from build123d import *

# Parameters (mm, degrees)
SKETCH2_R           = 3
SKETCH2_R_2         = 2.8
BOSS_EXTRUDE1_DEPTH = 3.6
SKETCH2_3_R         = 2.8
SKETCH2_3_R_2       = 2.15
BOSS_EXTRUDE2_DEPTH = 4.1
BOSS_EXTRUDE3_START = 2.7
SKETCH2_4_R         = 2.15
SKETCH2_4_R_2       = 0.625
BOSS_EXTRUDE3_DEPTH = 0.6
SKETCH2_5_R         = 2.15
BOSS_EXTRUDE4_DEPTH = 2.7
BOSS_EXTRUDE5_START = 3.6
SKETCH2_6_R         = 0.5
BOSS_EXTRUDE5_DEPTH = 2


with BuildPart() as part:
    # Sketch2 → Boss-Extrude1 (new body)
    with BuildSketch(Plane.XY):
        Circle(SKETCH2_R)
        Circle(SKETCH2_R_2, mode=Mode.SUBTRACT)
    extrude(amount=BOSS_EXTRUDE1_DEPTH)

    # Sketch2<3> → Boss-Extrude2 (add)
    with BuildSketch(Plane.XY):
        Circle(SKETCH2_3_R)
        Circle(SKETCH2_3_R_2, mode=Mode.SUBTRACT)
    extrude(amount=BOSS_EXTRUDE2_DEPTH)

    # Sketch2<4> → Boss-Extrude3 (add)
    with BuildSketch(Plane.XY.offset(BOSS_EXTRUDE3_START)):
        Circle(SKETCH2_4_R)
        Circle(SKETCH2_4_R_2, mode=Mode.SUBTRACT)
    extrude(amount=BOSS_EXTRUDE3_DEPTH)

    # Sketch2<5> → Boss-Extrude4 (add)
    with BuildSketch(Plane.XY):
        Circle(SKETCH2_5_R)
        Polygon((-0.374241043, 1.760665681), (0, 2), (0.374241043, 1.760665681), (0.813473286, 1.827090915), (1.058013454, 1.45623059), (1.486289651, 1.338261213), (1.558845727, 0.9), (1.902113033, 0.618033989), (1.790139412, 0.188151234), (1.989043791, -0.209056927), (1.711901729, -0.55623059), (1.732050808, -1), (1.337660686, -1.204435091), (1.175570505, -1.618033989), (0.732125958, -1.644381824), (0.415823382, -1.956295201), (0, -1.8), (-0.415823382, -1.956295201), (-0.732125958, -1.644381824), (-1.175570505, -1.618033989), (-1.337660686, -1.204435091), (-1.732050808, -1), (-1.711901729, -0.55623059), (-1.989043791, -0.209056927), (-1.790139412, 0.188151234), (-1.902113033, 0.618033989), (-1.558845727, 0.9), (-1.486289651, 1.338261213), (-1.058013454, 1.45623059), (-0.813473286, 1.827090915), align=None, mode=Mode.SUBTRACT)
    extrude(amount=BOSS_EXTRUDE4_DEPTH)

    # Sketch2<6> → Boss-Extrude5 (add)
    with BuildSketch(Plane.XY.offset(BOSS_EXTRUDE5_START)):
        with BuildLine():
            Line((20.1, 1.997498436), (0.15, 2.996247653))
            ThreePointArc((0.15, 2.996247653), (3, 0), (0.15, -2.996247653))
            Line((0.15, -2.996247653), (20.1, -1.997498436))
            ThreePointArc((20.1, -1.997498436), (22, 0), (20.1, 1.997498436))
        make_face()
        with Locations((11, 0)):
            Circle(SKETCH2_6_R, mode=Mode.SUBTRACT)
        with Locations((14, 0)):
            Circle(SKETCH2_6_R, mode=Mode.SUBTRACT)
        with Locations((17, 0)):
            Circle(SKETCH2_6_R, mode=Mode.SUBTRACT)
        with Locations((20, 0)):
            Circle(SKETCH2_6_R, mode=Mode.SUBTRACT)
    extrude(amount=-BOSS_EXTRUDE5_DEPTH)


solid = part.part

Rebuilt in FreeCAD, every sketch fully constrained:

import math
import FreeCAD as App
import Part
import Sketcher
Q = App.Units.Quantity

doc = App.newDocument("Part")
body = doc.addObject("PartDesign::Body", "Body")

sketch1 = body.newObject("Sketcher::SketchObject", "Sketch")
sketch1.AttachmentSupport = (doc.getObject("XY_Plane"), [""])
sketch1.MapMode = "FlatFace"
sketch1.addGeometry(Part.Circle(App.Vector(0, 0, 0), App.Vector(0, 0, 1), 3), False)
sketch1.addGeometry(Part.Circle(App.Vector(0, 0, 0), App.Vector(0, 0, 1), 2.8), False)
sketch1.addConstraint(Sketcher.Constraint("Coincident", 0, 3, -1, 1))
sketch1.addConstraint(Sketcher.Constraint("Coincident", 1, 3, -1, 1))
sketch1.addConstraint(Sketcher.Constraint("Diameter", 0, Q("6 mm")))
sketch1.addConstraint(Sketcher.Constraint("Diameter", 1, Q("5.6 mm")))
pad1 = body.newObject("PartDesign::Pad", "Pad")
pad1.Profile = sketch1
pad1.Length = 3.6

sketch2 = body.newObject("Sketcher::SketchObject", "Sketch001")
sketch2.AttachmentSupport = (doc.getObject("XY_Plane"), [""])
sketch2.MapMode = "FlatFace"
sketch2.addGeometry(Part.Circle(App.Vector(0, 0, 0), App.Vector(0, 0, 1), 2.8), False)
sketch2.addGeometry(Part.Circle(App.Vector(0, 0, 0), App.Vector(0, 0, 1), 2.1), False)
sketch2.addConstraint(Sketcher.Constraint("Coincident", 0, 3, -1, 1))
sketch2.addConstraint(Sketcher.Constraint("Coincident", 1, 3, -1, 1))
sketch2.addConstraint(Sketcher.Constraint("Diameter", 0, Q("5.6 mm")))
sketch2.addConstraint(Sketcher.Constraint("Diameter", 1, Q("4.3 mm")))
pad2 = body.newObject("PartDesign::Pad", "Pad001")
pad2.Profile = sketch2
pad2.Length = 4.1

sketch3 = body.newObject("Sketcher::SketchObject", "Sketch002")
sketch3.AttachmentSupport = (doc.getObject("XY_Plane"), [""])
sketch3.MapMode = "FlatFace"
sketch3.AttachmentOffset = App.Placement(App.Vector(0, 0, 2.7), App.Rotation())
sketch3.addGeometry(Part.Circle(App.Vector(0, 0, 0), App.Vector(0, 0, 1), 2.1), False)
sketch3.addGeometry(Part.Circle(App.Vector(0, 0, 0), App.Vector(0, 0, 1), 0.6), False)
sketch3.addConstraint(Sketcher.Constraint("Coincident", 0, 3, -1, 1))
sketch3.addConstraint(Sketcher.Constraint("Coincident", 1, 3, -1, 1))
sketch3.addConstraint(Sketcher.Constraint("Diameter", 0, Q("4.3 mm")))
sketch3.addConstraint(Sketcher.Constraint("Diameter", 1, Q("1.25 mm")))
pad3 = body.newObject("PartDesign::Pad", "Pad002")
pad3.Profile = sketch3
pad3.Length = 0.6

sketch4 = body.newObject("Sketcher::SketchObject", "Sketch003")
sketch4.AttachmentSupport = (doc.getObject("XY_Plane"), [""])
sketch4.MapMode = "FlatFace"
sketch4.addGeometry(Part.Circle(App.Vector(0, 0, 0), App.Vector(0, 0, 1), 2.15), False)
sketch4.addGeometry(Part.LineSegment(App.Vector(-0.813473, 1.827091, 0), App.Vector(-0.374241, 1.760666, 0)), False)
sketch4.addGeometry(Part.LineSegment(App.Vector(-0.374241, 1.760666, 0), App.Vector(0, 2, 0)), False)
sketch4.addGeometry(Part.LineSegment(App.Vector(0, 2, 0), App.Vector(0.374241, 1.760666, 0)), False)
sketch4.addGeometry(Part.LineSegment(App.Vector(0.374241, 1.760666, 0), App.Vector(0.813473, 1.827091, 0)), False)
sketch4.addGeometry(Part.LineSegment(App.Vector(0.813473, 1.827091, 0), App.Vector(1.058013, 1.456231, 0)), False)
sketch4.addGeometry(Part.LineSegment(App.Vector(1.058013, 1.456231, 0), App.Vector(1.48629, 1.338261, 0)), False)
sketch4.addGeometry(Part.LineSegment(App.Vector(1.48629, 1.338261, 0), App.Vector(1.558846, 0.9, 0)), False)
sketch4.addGeometry(Part.LineSegment(App.Vector(1.558846, 0.9, 0), App.Vector(1.902113, 0.618034, 0)), False)
sketch4.addGeometry(Part.LineSegment(App.Vector(1.902113, 0.618034, 0), App.Vector(1.790139, 0.188151, 0)), False)
sketch4.addGeometry(Part.LineSegment(App.Vector(1.790139, 0.188151, 0), App.Vector(1.989044, -0.209057, 0)), False)
sketch4.addGeometry(Part.LineSegment(App.Vector(1.989044, -0.209057, 0), App.Vector(1.711902, -0.556231, 0)), False)
sketch4.addGeometry(Part.LineSegment(App.Vector(1.711902, -0.556231, 0), App.Vector(1.732051, -1, 0)), False)
sketch4.addGeometry(Part.LineSegment(App.Vector(1.732051, -1, 0), App.Vector(1.337661, -1.204435, 0)), False)
sketch4.addGeometry(Part.LineSegment(App.Vector(1.337661, -1.204435, 0), App.Vector(1.175571, -1.618034, 0)), False)
sketch4.addGeometry(Part.LineSegment(App.Vector(1.175571, -1.618034, 0), App.Vector(0.732126, -1.644382, 0)), False)
sketch4.addGeometry(Part.LineSegment(App.Vector(0.732126, -1.644382, 0), App.Vector(0.415823, -1.956295, 0)), False)
sketch4.addGeometry(Part.LineSegment(App.Vector(0.415823, -1.956295, 0), App.Vector(0, -1.8, 0)), False)
sketch4.addGeometry(Part.LineSegment(App.Vector(0, -1.8, 0), App.Vector(-0.415823, -1.956295, 0)), False)
sketch4.addGeometry(Part.LineSegment(App.Vector(-0.415823, -1.956295, 0), App.Vector(-0.732126, -1.644382, 0)), False)
sketch4.addGeometry(Part.LineSegment(App.Vector(-0.732126, -1.644382, 0), App.Vector(-1.175571, -1.618034, 0)), False)
sketch4.addGeometry(Part.LineSegment(App.Vector(-1.175571, -1.618034, 0), App.Vector(-1.337661, -1.204435, 0)), False)
sketch4.addGeometry(Part.LineSegment(App.Vector(-1.337661, -1.204435, 0), App.Vector(-1.732051, -1, 0)), False)
sketch4.addGeometry(Part.LineSegment(App.Vector(-1.732051, -1, 0), App.Vector(-1.711902, -0.556231, 0)), False)
sketch4.addGeometry(Part.LineSegment(App.Vector(-1.711902, -0.556231, 0), App.Vector(-1.989044, -0.209057, 0)), False)
sketch4.addGeometry(Part.LineSegment(App.Vector(-1.989044, -0.209057, 0), App.Vector(-1.790139, 0.188151, 0)), False)
sketch4.addGeometry(Part.LineSegment(App.Vector(-1.790139, 0.188151, 0), App.Vector(-1.902113, 0.618034, 0)), False)
sketch4.addGeometry(Part.LineSegment(App.Vector(-1.902113, 0.618034, 0), App.Vector(-1.558846, 0.9, 0)), False)
sketch4.addGeometry(Part.LineSegment(App.Vector(-1.558846, 0.9, 0), App.Vector(-1.48629, 1.338261, 0)), False)
sketch4.addGeometry(Part.LineSegment(App.Vector(-1.48629, 1.338261, 0), App.Vector(-1.058013, 1.456231, 0)), False)
sketch4.addGeometry(Part.LineSegment(App.Vector(-1.058013, 1.456231, 0), App.Vector(-0.813473, 1.827091, 0)), False)
sketch4.addConstraint(Sketcher.Constraint("Coincident", 1, 2, 2, 1))
sketch4.addConstraint(Sketcher.Constraint("Coincident", 2, 2, 3, 1))
sketch4.addConstraint(Sketcher.Constraint("Coincident", 3, 2, 4, 1))
sketch4.addConstraint(Sketcher.Constraint("Coincident", 4, 2, 5, 1))
sketch4.addConstraint(Sketcher.Constraint("Coincident", 5, 2, 6, 1))
sketch4.addConstraint(Sketcher.Constraint("Coincident", 6, 2, 7, 1))
sketch4.addConstraint(Sketcher.Constraint("Coincident", 7, 2, 8, 1))
sketch4.addConstraint(Sketcher.Constraint("Coincident", 8, 2, 9, 1))
sketch4.addConstraint(Sketcher.Constraint("Coincident", 9, 2, 10, 1))
sketch4.addConstraint(Sketcher.Constraint("Coincident", 10, 2, 11, 1))
sketch4.addConstraint(Sketcher.Constraint("Coincident", 11, 2, 12, 1))
sketch4.addConstraint(Sketcher.Constraint("Coincident", 12, 2, 13, 1))
sketch4.addConstraint(Sketcher.Constraint("Coincident", 13, 2, 14, 1))
sketch4.addConstraint(Sketcher.Constraint("Coincident", 14, 2, 15, 1))
sketch4.addConstraint(Sketcher.Constraint("Coincident", 15, 2, 16, 1))
sketch4.addConstraint(Sketcher.Constraint("Coincident", 16, 2, 17, 1))
sketch4.addConstraint(Sketcher.Constraint("Coincident", 17, 2, 18, 1))
sketch4.addConstraint(Sketcher.Constraint("Coincident", 18, 2, 19, 1))
sketch4.addConstraint(Sketcher.Constraint("Coincident", 19, 2, 20, 1))
sketch4.addConstraint(Sketcher.Constraint("Coincident", 20, 2, 21, 1))
sketch4.addConstraint(Sketcher.Constraint("Coincident", 21, 2, 22, 1))
sketch4.addConstraint(Sketcher.Constraint("Coincident", 22, 2, 23, 1))
sketch4.addConstraint(Sketcher.Constraint("Coincident", 23, 2, 24, 1))
sketch4.addConstraint(Sketcher.Constraint("Coincident", 24, 2, 25, 1))
sketch4.addConstraint(Sketcher.Constraint("Coincident", 25, 2, 26, 1))
sketch4.addConstraint(Sketcher.Constraint("Coincident", 26, 2, 27, 1))
sketch4.addConstraint(Sketcher.Constraint("Coincident", 27, 2, 28, 1))
sketch4.addConstraint(Sketcher.Constraint("Coincident", 28, 2, 29, 1))
sketch4.addConstraint(Sketcher.Constraint("Coincident", 29, 2, 30, 1))
sketch4.addConstraint(Sketcher.Constraint("Coincident", 30, 2, 1, 1))
sketch4.addConstraint(Sketcher.Constraint("Coincident", 0, 3, -1, 1))
sketch4.addConstraint(Sketcher.Constraint("PointOnObject", 2, 2, -2))
sketch4.addConstraint(Sketcher.Constraint("PointOnObject", 17, 2, -2))
sketch4.addConstraint(Sketcher.Constraint("Diameter", 0, Q("4.3 mm")))
sketch4.addConstraint(Sketcher.Constraint("DistanceY", -1, 1, 2, 2, Q("2 mm")))
sketch4.addConstraint(Sketcher.Constraint("DistanceY", 12, 2, -1, 1, Q("1 mm")))
sketch4.addConstraint(Sketcher.Constraint("DistanceY", 22, 2, -1, 1, Q("1 mm")))
sketch4.addConstraint(Sketcher.Constraint("DistanceY", -1, 1, 7, 2, Q("0.9 mm")))
sketch4.addConstraint(Sketcher.Constraint("DistanceY", 17, 2, -1, 1, Q("1.8 mm")))
sketch4.addConstraint(Sketcher.Constraint("DistanceY", -1, 1, 27, 2, Q("0.9 mm")))
sketch4.addConstraint(Sketcher.Constraint("DistanceX", -1, 1, 11, 2, Q("1.711902 mm")))
sketch4.addConstraint(Sketcher.Constraint("DistanceX", 23, 2, -1, 1, Q("1.711902 mm")))
sketch4.addConstraint(Sketcher.Constraint("DistanceX", 5, 2, 8, 2, Q("0.8441 mm")))
sketch4.addConstraint(Sketcher.Constraint("DistanceX", 7, 2, 10, 2, Q("0.430198 mm")))
sketch4.addConstraint(Sketcher.Constraint("DistanceY", 14, 2, 13, 2, Q("0.413599 mm")))
sketch4.addConstraint(Sketcher.Constraint("DistanceY", 20, 2, 21, 2, Q("0.413599 mm")))
sketch4.addConstraint(Sketcher.Constraint("DistanceX", 24, 2, 27, 2, Q("0.430198 mm")))
sketch4.addConstraint(Sketcher.Constraint("DistanceX", 26, 2, 29, 2, Q("0.8441 mm")))
sketch4.addConstraint(Sketcher.Constraint("DistanceX", 1, 2, -1, 1, Q("0.374241 mm")))
sketch4.addConstraint(Sketcher.Constraint("DistanceX", -1, 1, 3, 2, Q("0.374241 mm")))
sketch4.addConstraint(Sketcher.Constraint("DistanceY", -1, 1, 4, 2, Q("1.827091 mm")))
sketch4.addConstraint(Sketcher.Constraint("DistanceY", -1, 1, 5, 2, Q("1.456231 mm")))
sketch4.addConstraint(Sketcher.Constraint("DistanceX", -1, 1, 6, 2, Q("1.48629 mm")))
sketch4.addConstraint(Sketcher.Constraint("DistanceY", -1, 1, 6, 2, Q("1.338261 mm")))
sketch4.addConstraint(Sketcher.Constraint("DistanceX", -1, 1, 9, 2, Q("1.790139 mm")))
sketch4.addConstraint(Sketcher.Constraint("DistanceY", -1, 1, 9, 2, Q("0.188151 mm")))
sketch4.addConstraint(Sketcher.Constraint("DistanceY", 11, 2, -1, 1, Q("0.556231 mm")))
sketch4.addConstraint(Sketcher.Constraint("DistanceX", -1, 1, 12, 2, Q("1.732051 mm")))
sketch4.addConstraint(Sketcher.Constraint("DistanceX", -1, 1, 13, 2, Q("1.337661 mm")))
sketch4.addConstraint(Sketcher.Constraint("DistanceX", -1, 1, 14, 2, Q("1.175571 mm")))
sketch4.addConstraint(Sketcher.Constraint("DistanceY", 15, 2, -1, 1, Q("1.644382 mm")))
sketch4.addConstraint(Sketcher.Constraint("DistanceY", 19, 2, -1, 1, Q("1.644382 mm")))
sketch4.addConstraint(Sketcher.Constraint("DistanceX", 20, 2, -1, 1, Q("1.175571 mm")))
sketch4.addConstraint(Sketcher.Constraint("DistanceX", 21, 2, -1, 1, Q("1.337661 mm")))
sketch4.addConstraint(Sketcher.Constraint("DistanceX", 22, 2, -1, 1, Q("1.732051 mm")))
sketch4.addConstraint(Sketcher.Constraint("DistanceY", 23, 2, -1, 1, Q("0.556231 mm")))
sketch4.addConstraint(Sketcher.Constraint("DistanceX", 25, 2, -1, 1, Q("1.790139 mm")))
sketch4.addConstraint(Sketcher.Constraint("DistanceY", -1, 1, 25, 2, Q("0.188151 mm")))
sketch4.addConstraint(Sketcher.Constraint("DistanceX", 28, 2, -1, 1, Q("1.48629 mm")))
sketch4.addConstraint(Sketcher.Constraint("DistanceY", -1, 1, 28, 2, Q("1.338261 mm")))
sketch4.addConstraint(Sketcher.Constraint("DistanceY", -1, 1, 29, 2, Q("1.456231 mm")))
sketch4.addConstraint(Sketcher.Constraint("DistanceY", -1, 1, 30, 2, Q("1.827091 mm")))
sketch4.addConstraint(Sketcher.Constraint("DistanceX", 4, 2, 5, 2, Q("0.24454 mm")))
sketch4.addConstraint(Sketcher.Constraint("DistanceX", 3, 2, 8, 2, Q("1.527872 mm")))
sketch4.addConstraint(Sketcher.Constraint("DistanceY", 8, 2, 3, 2, Q("1.142632 mm")))
sketch4.addConstraint(Sketcher.Constraint("DistanceY", 10, 2, 9, 2, Q("0.397208 mm")))
sketch4.addConstraint(Sketcher.Constraint("DistanceX", 8, 2, 10, 2, Q("0.086931 mm")))
sketch4.addConstraint(Sketcher.Constraint("DistanceY", 10, 2, 8, 2, Q("0.827091 mm")))
sketch4.addConstraint(Sketcher.Constraint("DistanceY", 13, 2, 10, 2, Q("0.995378 mm")))
sketch4.addConstraint(Sketcher.Constraint("DistanceY", 16, 2, 14, 2, Q("0.338261 mm")))
sketch4.addConstraint(Sketcher.Constraint("DistanceX", 16, 2, 11, 2, Q("1.296078 mm")))
sketch4.addConstraint(Sketcher.Constraint("DistanceX", 18, 2, 15, 2, Q("1.147949 mm")))
sketch4.addConstraint(Sketcher.Constraint("DistanceY", 18, 2, 14, 2, Q("0.338261 mm")))
sketch4.addConstraint(Sketcher.Constraint("DistanceX", 19, 2, 16, 2, Q("1.147949 mm")))
sketch4.addConstraint(Sketcher.Constraint("DistanceX", 19, 2, 15, 2, Q("1.464252 mm")))
sketch4.addConstraint(Sketcher.Constraint("DistanceY", 18, 2, 20, 2, Q("0.338261 mm")))
sketch4.addConstraint(Sketcher.Constraint("DistanceY", 21, 2, 24, 2, Q("0.995378 mm")))
sketch4.addConstraint(Sketcher.Constraint("DistanceX", 24, 2, 26, 2, Q("0.086931 mm")))
sketch4.addConstraint(Sketcher.Constraint("DistanceY", 24, 2, 26, 2, Q("0.827091 mm")))
sketch4.addConstraint(Sketcher.Constraint("DistanceX", 26, 2, 23, 2, Q("0.190211 mm")))
sketch4.addConstraint(Sketcher.Constraint("DistanceX", 29, 2, 30, 2, Q("0.24454 mm")))
sketch4.addConstraint(Sketcher.Constraint("Distance", 1, Q("0.444227 mm")))
pad4 = body.newObject("PartDesign::Pad", "Pad003")
pad4.Profile = sketch4
pad4.Length = 2.7

sketch5 = body.newObject("Sketcher::SketchObject", "Sketch004")
sketch5.AttachmentSupport = (doc.getObject("XY_Plane"), [""])
sketch5.MapMode = "FlatFace"
sketch5.AttachmentOffset = App.Placement(App.Vector(0, 0, 3.6), App.Rotation())
sketch5.addGeometry(Part.LineSegment(App.Vector(20.1, 2, 0), App.Vector(0.1, 3, 0)), False)
sketch5.addGeometry(Part.ArcOfCircle(Part.Circle(App.Vector(0, 0, 0), App.Vector(0, 0, 1), 3), math.radians(-87), math.radians(87)), False)
sketch5.addGeometry(Part.LineSegment(App.Vector(0.1, -3, 0), App.Vector(20.1, -2, 0)), False)
sketch5.addGeometry(Part.ArcOfCircle(Part.Circle(App.Vector(20, 0, 0), App.Vector(0, 0, 1), 2), math.radians(-87), math.radians(87)), False)
sketch5.addGeometry(Part.Circle(App.Vector(11, 0, 0), App.Vector(0, 0, 1), 0.5), False)
sketch5.addGeometry(Part.Circle(App.Vector(14, 0, 0), App.Vector(0, 0, 1), 0.5), False)
sketch5.addGeometry(Part.Circle(App.Vector(17, 0, 0), App.Vector(0, 0, 1), 0.5), False)
sketch5.addGeometry(Part.Circle(App.Vector(20, 0, 0), App.Vector(0, 0, 1), 0.5), False)
sketch5.addConstraint(Sketcher.Constraint("Tangent", 0, 2, 1, 2))
sketch5.addConstraint(Sketcher.Constraint("Tangent", 1, 1, 2, 1))
sketch5.addConstraint(Sketcher.Constraint("Tangent", 2, 2, 3, 1))
sketch5.addConstraint(Sketcher.Constraint("Tangent", 3, 2, 0, 1))
sketch5.addConstraint(Sketcher.Constraint("Coincident", 1, 3, -1, 1))
sketch5.addConstraint(Sketcher.Constraint("Coincident", 7, 3, 3, 3))
sketch5.addConstraint(Sketcher.Constraint("Equal", 4, 5))
sketch5.addConstraint(Sketcher.Constraint("Equal", 5, 6))
sketch5.addConstraint(Sketcher.Constraint("Equal", 6, 7))
sketch5.addConstraint(Sketcher.Constraint("PointOnObject", 3, 3, -1))
sketch5.addConstraint(Sketcher.Constraint("PointOnObject", 4, 3, -1))
sketch5.addConstraint(Sketcher.Constraint("PointOnObject", 5, 3, -1))
sketch5.addConstraint(Sketcher.Constraint("PointOnObject", 6, 3, -1))
sketch5.addConstraint(Sketcher.Constraint("Diameter", 4, Q("1 mm")))
sketch5.addConstraint(Sketcher.Constraint("Radius", 1, Q("3 mm")))
sketch5.addConstraint(Sketcher.Constraint("Radius", 3, Q("2 mm")))
sketch5.addConstraint(Sketcher.Constraint("DistanceX", -1, 1, 3, 3, Q("20 mm")))
sketch5.addConstraint(Sketcher.Constraint("DistanceX", -1, 1, 4, 3, Q("11 mm")))
sketch5.addConstraint(Sketcher.Constraint("DistanceX", -1, 1, 5, 3, Q("14 mm")))
sketch5.addConstraint(Sketcher.Constraint("DistanceX", -1, 1, 6, 3, Q("17 mm")))
pad5 = body.newObject("PartDesign::Pad", "Pad004")
pad5.Profile = sketch5
pad5.Length = 2
pad5.Reversed = True

doc.recompute()
